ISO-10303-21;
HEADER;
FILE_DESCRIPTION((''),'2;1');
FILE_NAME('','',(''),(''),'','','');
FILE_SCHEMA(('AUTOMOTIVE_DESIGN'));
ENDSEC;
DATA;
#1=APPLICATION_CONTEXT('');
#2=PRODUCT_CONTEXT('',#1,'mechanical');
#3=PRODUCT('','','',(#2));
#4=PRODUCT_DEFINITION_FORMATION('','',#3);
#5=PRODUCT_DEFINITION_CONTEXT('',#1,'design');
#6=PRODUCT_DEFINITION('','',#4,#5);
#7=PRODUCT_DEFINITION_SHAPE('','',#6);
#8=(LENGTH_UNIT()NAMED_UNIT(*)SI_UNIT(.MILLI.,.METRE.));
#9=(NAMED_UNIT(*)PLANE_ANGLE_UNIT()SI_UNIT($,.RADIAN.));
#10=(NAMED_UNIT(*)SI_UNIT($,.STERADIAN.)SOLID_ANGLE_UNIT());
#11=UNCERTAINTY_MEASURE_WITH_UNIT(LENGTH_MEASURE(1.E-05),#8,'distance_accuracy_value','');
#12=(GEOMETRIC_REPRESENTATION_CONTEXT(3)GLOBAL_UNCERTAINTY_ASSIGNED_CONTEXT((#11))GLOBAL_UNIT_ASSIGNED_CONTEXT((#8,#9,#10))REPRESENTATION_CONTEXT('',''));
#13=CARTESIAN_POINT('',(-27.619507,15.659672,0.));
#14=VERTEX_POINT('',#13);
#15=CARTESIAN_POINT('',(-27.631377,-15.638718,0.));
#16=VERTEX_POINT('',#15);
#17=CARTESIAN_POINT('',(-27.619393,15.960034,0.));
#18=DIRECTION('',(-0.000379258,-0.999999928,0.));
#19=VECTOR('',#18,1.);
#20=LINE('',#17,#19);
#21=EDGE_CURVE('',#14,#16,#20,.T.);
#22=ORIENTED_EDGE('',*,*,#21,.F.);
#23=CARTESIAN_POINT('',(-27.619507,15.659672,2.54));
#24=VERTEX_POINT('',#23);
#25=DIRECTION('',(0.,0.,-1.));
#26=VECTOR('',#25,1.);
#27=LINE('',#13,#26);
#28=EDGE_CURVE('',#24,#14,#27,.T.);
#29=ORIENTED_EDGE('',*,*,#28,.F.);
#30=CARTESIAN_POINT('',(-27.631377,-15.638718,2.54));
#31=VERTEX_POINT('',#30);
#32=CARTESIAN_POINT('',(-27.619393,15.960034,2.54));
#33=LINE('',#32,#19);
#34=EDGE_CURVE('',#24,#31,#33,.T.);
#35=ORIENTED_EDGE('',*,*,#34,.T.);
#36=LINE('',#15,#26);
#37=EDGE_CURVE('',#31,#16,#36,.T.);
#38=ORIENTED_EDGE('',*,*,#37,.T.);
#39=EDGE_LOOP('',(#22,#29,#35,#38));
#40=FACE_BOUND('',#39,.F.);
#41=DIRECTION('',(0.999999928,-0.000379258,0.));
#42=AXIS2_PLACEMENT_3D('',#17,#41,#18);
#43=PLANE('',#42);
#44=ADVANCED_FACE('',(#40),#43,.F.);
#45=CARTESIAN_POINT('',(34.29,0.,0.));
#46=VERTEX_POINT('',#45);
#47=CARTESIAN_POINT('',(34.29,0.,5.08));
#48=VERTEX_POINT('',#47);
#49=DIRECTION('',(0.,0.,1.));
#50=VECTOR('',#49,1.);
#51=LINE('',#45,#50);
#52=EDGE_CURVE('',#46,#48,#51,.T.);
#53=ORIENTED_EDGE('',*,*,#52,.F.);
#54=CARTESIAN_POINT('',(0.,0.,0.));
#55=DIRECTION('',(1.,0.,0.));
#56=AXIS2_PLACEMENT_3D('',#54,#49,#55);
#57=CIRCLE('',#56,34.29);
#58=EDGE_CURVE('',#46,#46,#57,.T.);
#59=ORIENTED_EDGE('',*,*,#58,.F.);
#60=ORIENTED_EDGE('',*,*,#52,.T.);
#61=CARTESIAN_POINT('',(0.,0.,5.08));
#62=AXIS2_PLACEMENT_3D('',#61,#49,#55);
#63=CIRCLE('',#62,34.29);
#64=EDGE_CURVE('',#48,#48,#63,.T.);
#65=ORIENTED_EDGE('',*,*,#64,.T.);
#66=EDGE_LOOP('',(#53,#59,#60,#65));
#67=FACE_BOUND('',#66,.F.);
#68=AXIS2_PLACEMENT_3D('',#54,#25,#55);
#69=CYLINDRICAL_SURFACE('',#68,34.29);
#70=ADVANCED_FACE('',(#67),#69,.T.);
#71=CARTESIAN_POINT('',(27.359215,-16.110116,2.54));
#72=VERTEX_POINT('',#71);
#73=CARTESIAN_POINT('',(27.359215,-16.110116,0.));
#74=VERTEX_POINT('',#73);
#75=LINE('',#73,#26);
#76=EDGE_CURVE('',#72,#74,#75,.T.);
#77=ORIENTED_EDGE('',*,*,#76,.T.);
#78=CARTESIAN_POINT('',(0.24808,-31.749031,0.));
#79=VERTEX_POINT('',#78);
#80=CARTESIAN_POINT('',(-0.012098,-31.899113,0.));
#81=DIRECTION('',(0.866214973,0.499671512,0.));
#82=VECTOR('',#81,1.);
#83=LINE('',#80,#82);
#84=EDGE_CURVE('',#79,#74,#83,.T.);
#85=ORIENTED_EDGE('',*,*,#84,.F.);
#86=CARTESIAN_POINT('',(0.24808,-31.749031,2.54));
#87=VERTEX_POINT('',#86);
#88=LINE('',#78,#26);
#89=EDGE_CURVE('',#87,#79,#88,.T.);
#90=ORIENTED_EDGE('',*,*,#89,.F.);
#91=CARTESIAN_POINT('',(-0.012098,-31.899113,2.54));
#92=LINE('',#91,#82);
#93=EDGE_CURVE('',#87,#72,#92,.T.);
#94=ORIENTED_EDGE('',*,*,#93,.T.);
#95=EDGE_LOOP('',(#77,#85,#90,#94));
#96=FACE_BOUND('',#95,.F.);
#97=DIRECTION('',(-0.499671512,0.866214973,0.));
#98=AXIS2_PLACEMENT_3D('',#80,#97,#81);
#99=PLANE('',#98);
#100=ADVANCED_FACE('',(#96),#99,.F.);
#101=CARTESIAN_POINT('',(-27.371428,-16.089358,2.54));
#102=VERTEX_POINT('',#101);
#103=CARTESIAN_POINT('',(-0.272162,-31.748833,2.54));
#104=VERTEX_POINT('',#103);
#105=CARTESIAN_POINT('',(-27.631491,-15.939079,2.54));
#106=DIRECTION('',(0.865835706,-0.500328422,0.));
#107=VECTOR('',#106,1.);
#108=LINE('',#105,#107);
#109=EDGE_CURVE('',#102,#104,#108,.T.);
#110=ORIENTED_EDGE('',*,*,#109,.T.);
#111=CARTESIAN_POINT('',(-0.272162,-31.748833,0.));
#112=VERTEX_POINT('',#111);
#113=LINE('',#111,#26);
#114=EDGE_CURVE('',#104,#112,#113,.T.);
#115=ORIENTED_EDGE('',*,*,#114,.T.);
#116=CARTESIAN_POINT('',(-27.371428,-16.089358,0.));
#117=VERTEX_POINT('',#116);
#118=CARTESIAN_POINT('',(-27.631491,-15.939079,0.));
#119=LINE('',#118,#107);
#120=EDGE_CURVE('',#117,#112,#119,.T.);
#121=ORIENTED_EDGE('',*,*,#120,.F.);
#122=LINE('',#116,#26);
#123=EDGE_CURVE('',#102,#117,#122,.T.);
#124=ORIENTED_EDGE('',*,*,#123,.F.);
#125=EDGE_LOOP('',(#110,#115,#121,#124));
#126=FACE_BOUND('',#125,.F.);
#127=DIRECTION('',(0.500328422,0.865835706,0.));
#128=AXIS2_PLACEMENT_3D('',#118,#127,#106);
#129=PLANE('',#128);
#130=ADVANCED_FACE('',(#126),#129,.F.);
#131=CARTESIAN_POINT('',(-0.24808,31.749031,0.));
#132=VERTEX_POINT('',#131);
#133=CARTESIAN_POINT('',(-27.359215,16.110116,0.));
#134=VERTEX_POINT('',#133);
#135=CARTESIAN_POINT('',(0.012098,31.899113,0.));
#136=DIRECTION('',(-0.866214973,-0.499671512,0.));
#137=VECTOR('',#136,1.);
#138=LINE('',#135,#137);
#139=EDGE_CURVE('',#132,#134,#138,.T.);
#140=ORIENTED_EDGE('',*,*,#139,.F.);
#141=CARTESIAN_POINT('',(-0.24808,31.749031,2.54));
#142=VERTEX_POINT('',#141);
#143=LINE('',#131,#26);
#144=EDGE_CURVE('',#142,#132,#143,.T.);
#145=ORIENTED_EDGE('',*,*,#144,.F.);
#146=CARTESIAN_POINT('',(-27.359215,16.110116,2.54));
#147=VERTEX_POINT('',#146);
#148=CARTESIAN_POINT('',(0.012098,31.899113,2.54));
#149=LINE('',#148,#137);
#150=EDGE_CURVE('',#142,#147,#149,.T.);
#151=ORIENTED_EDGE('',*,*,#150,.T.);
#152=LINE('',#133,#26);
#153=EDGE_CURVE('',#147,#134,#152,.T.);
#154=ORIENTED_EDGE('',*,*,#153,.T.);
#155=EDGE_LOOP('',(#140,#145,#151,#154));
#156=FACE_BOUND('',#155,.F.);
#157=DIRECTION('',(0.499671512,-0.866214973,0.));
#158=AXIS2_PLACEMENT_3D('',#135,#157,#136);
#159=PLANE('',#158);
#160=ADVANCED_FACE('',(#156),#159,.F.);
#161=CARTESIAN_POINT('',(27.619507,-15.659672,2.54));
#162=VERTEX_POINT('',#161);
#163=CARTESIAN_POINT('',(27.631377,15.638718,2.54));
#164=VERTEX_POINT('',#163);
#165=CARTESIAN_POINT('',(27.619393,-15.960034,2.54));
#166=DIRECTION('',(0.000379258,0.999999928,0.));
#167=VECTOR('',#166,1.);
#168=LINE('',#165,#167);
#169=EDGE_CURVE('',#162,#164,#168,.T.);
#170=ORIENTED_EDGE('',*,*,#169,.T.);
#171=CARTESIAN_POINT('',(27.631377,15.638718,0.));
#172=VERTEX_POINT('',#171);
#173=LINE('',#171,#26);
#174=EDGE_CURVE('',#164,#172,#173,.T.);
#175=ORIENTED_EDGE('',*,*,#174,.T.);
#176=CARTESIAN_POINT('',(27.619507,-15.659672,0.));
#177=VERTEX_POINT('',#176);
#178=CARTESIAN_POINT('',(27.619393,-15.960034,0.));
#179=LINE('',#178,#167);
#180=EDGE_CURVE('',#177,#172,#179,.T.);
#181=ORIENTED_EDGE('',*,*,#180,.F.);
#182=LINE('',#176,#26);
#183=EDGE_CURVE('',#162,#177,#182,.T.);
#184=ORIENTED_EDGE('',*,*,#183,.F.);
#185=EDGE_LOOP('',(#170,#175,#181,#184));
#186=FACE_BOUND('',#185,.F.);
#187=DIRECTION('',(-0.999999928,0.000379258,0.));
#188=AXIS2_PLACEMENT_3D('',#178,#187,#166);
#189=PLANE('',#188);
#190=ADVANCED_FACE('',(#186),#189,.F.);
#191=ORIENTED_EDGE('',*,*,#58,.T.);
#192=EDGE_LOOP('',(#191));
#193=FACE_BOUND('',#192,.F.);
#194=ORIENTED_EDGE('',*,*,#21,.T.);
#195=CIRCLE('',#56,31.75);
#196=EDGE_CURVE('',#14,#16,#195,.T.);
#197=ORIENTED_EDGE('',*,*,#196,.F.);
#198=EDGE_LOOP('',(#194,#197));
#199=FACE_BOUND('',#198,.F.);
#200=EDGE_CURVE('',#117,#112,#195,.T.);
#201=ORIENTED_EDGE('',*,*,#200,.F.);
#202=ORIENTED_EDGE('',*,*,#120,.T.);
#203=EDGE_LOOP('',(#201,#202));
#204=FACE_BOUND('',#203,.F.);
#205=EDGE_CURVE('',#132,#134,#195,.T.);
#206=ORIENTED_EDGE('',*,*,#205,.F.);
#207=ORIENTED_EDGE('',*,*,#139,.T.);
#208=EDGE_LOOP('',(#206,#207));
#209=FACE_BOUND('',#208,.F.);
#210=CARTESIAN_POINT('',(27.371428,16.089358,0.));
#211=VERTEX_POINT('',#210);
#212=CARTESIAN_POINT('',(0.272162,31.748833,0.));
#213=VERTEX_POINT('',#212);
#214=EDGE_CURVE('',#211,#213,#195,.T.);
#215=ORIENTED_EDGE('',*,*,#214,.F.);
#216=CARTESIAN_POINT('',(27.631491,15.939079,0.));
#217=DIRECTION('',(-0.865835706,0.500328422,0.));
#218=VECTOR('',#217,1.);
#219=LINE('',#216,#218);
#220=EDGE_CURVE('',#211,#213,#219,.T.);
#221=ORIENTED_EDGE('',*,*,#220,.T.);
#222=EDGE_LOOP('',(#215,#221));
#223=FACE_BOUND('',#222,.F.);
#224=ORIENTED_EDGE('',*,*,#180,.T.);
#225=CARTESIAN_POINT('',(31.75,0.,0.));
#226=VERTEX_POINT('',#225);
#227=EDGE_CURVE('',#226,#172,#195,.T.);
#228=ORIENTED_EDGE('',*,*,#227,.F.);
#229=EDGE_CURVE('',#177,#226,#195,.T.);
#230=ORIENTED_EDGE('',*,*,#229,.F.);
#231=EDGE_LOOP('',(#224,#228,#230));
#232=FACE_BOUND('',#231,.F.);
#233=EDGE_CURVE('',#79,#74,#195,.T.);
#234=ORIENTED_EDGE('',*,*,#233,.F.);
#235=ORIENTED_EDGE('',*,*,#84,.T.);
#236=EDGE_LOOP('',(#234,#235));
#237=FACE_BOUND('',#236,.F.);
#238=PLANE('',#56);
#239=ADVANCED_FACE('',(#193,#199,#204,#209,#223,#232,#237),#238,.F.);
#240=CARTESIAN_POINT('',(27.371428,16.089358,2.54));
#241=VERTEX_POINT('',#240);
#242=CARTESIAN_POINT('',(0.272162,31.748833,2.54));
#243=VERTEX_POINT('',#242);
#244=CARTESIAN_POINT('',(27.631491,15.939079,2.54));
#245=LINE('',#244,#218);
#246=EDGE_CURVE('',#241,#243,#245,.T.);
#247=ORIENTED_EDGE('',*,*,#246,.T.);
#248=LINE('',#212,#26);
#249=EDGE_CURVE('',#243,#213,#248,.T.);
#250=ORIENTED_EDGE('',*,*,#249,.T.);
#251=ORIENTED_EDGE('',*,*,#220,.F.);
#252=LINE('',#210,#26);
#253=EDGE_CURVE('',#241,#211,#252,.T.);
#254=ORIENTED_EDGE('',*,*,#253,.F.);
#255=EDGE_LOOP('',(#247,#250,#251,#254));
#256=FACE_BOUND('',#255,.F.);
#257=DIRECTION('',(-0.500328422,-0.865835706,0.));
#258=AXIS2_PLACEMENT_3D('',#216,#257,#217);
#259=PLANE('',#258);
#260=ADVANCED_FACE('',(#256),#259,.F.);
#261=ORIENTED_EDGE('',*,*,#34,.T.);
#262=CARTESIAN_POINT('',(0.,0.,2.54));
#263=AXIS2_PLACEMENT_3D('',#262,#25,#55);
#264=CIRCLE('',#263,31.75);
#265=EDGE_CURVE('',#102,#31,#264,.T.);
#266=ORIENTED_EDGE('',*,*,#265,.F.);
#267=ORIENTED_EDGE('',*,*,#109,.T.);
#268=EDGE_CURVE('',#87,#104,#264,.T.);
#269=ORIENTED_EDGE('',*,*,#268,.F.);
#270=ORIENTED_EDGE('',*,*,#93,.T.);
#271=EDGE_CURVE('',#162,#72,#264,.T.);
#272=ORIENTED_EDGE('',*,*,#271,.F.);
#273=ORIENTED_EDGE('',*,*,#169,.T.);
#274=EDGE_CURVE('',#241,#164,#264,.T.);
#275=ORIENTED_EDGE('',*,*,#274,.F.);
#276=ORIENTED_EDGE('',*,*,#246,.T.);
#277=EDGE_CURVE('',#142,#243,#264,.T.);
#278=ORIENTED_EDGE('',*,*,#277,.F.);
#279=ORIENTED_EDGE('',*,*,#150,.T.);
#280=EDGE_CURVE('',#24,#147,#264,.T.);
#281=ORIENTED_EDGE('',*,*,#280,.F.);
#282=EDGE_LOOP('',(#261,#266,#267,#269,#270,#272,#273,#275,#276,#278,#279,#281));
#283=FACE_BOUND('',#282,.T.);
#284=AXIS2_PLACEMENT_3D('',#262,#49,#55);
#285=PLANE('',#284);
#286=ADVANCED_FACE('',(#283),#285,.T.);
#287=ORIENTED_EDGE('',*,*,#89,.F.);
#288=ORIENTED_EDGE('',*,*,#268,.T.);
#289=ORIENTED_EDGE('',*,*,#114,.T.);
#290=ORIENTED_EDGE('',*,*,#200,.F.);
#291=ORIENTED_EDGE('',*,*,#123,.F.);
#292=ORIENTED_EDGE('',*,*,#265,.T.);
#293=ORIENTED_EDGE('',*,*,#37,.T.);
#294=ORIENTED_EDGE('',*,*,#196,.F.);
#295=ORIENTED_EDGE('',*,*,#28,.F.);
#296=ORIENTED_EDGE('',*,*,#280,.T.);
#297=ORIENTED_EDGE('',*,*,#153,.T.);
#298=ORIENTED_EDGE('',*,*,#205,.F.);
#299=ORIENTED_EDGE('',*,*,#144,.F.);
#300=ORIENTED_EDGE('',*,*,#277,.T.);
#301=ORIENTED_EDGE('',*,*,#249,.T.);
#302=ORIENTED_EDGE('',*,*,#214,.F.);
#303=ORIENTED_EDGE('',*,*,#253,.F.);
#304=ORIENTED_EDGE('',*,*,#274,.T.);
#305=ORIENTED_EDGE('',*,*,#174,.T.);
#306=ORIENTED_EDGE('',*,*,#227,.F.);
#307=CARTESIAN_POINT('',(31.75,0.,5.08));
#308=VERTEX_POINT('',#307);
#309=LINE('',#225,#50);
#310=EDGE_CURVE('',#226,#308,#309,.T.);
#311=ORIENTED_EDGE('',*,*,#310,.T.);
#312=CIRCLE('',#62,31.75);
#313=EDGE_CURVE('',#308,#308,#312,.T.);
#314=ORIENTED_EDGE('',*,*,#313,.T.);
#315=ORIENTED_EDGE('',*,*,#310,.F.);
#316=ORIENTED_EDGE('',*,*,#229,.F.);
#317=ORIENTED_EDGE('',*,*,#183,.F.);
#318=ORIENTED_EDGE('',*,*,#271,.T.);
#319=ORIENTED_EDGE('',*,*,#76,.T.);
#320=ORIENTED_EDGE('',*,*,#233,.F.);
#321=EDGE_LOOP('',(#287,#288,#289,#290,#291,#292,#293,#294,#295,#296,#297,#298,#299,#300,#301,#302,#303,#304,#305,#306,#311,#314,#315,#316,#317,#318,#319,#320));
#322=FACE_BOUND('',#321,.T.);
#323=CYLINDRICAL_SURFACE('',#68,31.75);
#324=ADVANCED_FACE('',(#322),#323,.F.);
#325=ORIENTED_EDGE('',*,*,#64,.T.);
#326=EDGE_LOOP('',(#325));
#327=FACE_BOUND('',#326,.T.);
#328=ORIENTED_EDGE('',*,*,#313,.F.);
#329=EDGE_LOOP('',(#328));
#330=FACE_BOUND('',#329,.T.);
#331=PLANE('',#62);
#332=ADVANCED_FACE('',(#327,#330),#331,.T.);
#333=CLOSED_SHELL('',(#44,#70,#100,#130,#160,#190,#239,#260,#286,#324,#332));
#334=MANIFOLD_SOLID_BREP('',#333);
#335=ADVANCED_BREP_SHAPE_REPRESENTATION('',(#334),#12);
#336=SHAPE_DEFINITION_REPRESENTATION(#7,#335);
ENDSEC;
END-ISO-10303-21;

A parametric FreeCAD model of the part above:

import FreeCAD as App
import Part
import Sketcher
from FreeCAD import Vector
Q = App.Units.Quantity


def add_polygon(sketch, points):
    """Adds a closed chain of lines whose ends are joined by coincident constraints."""
    first, n = sketch.GeometryCount, len(points)
    for a, b in zip(points, points[1:] + points[:1]):
        sketch.addGeometry(Part.LineSegment(App.Vector(*a, 0), App.Vector(*b, 0)), False)
    for i in range(n):
        sketch.addConstraint(Sketcher.Constraint("Coincident", first + i, 2, first + (i + 1) % n, 1))

doc = App.newDocument("Part")
body = doc.addObject("PartDesign::Body", "Body")

# Sketch on XY plane
sketch1 = doc.addObject("Sketcher::SketchObject", "Sketch")
body.addObject(sketch1)
sketch1.AttachmentSupport = (doc.XY_Plane, [""])
sketch1.MapMode = "FlatFace"
sketch1.addGeometry(Part.Circle(Vector(0, 0, 0), Vector(0, 0, 1), 34), False)
sketch1.addGeometry(Part.Circle(Vector(0, 0, 0), Vector(0, 0, 1), 32), False)
sketch1.addConstraint(Sketcher.Constraint("Coincident", 0, 3, -1, 1))
sketch1.addConstraint(Sketcher.Constraint("Coincident", 1, 3, -1, 1))
sketch1.addConstraint(Sketcher.Constraint("Diameter", 0, Q("2.7 in")))
sketch1.addConstraint(Sketcher.Constraint("Diameter", 1, Q("2.5 in")))
pad1 = doc.addObject("PartDesign::Pad", "Pad")
body.addObject(pad1)
pad1.Profile = sketch1
pad1.Length = Q("0.2 in")

# Sketch on XY plane
sketch2 = doc.addObject("Sketcher::SketchObject", "Sketch001")
body.addObject(sketch2)
sketch2.AttachmentSupport = (doc.XY_Plane, [""])
sketch2.MapMode = "FlatFace"
add_polygon(sketch2, [(28, 16), (0, 32), (-28, 16), (-28, -16), (0, -32), (28, -16)])  # lines 0-5
sketch2.addConstraint(Sketcher.Constraint("Symmetric", 0, 2, 3, 2, -1, 1))
sketch2.addConstraint(Sketcher.Constraint("Symmetric", 1, 2, 4, 2, -1, 1))
sketch2.addConstraint(Sketcher.Constraint("Symmetric", 2, 2, 5, 2, -1, 1))
sketch2.addConstraint(Sketcher.Constraint("Equal", 0, 1))
sketch2.addConstraint(Sketcher.Constraint("Equal", 1, 2))
sketch2.addConstraint(Sketcher.Constraint("DistanceX", 2, 2, 1, 2, 0.012098))
sketch2.addConstraint(Sketcher.Constraint("DistanceX", 2, 2, -1, 1, 27.631491))
sketch2.addConstraint(Sketcher.Constraint("DistanceY", 2, 2, -1, 1, 15.939079))
sketch2.addConstraint(Sketcher.Constraint("DistanceX", 1, 2, 0, 2, 27.631491))
pad2 = doc.addObject("PartDesign::Pad", "Pad001")
body.addObject(pad2)
pad2.Profile = sketch2
pad2.Length = Q("0.1 in")

doc.recompute()
